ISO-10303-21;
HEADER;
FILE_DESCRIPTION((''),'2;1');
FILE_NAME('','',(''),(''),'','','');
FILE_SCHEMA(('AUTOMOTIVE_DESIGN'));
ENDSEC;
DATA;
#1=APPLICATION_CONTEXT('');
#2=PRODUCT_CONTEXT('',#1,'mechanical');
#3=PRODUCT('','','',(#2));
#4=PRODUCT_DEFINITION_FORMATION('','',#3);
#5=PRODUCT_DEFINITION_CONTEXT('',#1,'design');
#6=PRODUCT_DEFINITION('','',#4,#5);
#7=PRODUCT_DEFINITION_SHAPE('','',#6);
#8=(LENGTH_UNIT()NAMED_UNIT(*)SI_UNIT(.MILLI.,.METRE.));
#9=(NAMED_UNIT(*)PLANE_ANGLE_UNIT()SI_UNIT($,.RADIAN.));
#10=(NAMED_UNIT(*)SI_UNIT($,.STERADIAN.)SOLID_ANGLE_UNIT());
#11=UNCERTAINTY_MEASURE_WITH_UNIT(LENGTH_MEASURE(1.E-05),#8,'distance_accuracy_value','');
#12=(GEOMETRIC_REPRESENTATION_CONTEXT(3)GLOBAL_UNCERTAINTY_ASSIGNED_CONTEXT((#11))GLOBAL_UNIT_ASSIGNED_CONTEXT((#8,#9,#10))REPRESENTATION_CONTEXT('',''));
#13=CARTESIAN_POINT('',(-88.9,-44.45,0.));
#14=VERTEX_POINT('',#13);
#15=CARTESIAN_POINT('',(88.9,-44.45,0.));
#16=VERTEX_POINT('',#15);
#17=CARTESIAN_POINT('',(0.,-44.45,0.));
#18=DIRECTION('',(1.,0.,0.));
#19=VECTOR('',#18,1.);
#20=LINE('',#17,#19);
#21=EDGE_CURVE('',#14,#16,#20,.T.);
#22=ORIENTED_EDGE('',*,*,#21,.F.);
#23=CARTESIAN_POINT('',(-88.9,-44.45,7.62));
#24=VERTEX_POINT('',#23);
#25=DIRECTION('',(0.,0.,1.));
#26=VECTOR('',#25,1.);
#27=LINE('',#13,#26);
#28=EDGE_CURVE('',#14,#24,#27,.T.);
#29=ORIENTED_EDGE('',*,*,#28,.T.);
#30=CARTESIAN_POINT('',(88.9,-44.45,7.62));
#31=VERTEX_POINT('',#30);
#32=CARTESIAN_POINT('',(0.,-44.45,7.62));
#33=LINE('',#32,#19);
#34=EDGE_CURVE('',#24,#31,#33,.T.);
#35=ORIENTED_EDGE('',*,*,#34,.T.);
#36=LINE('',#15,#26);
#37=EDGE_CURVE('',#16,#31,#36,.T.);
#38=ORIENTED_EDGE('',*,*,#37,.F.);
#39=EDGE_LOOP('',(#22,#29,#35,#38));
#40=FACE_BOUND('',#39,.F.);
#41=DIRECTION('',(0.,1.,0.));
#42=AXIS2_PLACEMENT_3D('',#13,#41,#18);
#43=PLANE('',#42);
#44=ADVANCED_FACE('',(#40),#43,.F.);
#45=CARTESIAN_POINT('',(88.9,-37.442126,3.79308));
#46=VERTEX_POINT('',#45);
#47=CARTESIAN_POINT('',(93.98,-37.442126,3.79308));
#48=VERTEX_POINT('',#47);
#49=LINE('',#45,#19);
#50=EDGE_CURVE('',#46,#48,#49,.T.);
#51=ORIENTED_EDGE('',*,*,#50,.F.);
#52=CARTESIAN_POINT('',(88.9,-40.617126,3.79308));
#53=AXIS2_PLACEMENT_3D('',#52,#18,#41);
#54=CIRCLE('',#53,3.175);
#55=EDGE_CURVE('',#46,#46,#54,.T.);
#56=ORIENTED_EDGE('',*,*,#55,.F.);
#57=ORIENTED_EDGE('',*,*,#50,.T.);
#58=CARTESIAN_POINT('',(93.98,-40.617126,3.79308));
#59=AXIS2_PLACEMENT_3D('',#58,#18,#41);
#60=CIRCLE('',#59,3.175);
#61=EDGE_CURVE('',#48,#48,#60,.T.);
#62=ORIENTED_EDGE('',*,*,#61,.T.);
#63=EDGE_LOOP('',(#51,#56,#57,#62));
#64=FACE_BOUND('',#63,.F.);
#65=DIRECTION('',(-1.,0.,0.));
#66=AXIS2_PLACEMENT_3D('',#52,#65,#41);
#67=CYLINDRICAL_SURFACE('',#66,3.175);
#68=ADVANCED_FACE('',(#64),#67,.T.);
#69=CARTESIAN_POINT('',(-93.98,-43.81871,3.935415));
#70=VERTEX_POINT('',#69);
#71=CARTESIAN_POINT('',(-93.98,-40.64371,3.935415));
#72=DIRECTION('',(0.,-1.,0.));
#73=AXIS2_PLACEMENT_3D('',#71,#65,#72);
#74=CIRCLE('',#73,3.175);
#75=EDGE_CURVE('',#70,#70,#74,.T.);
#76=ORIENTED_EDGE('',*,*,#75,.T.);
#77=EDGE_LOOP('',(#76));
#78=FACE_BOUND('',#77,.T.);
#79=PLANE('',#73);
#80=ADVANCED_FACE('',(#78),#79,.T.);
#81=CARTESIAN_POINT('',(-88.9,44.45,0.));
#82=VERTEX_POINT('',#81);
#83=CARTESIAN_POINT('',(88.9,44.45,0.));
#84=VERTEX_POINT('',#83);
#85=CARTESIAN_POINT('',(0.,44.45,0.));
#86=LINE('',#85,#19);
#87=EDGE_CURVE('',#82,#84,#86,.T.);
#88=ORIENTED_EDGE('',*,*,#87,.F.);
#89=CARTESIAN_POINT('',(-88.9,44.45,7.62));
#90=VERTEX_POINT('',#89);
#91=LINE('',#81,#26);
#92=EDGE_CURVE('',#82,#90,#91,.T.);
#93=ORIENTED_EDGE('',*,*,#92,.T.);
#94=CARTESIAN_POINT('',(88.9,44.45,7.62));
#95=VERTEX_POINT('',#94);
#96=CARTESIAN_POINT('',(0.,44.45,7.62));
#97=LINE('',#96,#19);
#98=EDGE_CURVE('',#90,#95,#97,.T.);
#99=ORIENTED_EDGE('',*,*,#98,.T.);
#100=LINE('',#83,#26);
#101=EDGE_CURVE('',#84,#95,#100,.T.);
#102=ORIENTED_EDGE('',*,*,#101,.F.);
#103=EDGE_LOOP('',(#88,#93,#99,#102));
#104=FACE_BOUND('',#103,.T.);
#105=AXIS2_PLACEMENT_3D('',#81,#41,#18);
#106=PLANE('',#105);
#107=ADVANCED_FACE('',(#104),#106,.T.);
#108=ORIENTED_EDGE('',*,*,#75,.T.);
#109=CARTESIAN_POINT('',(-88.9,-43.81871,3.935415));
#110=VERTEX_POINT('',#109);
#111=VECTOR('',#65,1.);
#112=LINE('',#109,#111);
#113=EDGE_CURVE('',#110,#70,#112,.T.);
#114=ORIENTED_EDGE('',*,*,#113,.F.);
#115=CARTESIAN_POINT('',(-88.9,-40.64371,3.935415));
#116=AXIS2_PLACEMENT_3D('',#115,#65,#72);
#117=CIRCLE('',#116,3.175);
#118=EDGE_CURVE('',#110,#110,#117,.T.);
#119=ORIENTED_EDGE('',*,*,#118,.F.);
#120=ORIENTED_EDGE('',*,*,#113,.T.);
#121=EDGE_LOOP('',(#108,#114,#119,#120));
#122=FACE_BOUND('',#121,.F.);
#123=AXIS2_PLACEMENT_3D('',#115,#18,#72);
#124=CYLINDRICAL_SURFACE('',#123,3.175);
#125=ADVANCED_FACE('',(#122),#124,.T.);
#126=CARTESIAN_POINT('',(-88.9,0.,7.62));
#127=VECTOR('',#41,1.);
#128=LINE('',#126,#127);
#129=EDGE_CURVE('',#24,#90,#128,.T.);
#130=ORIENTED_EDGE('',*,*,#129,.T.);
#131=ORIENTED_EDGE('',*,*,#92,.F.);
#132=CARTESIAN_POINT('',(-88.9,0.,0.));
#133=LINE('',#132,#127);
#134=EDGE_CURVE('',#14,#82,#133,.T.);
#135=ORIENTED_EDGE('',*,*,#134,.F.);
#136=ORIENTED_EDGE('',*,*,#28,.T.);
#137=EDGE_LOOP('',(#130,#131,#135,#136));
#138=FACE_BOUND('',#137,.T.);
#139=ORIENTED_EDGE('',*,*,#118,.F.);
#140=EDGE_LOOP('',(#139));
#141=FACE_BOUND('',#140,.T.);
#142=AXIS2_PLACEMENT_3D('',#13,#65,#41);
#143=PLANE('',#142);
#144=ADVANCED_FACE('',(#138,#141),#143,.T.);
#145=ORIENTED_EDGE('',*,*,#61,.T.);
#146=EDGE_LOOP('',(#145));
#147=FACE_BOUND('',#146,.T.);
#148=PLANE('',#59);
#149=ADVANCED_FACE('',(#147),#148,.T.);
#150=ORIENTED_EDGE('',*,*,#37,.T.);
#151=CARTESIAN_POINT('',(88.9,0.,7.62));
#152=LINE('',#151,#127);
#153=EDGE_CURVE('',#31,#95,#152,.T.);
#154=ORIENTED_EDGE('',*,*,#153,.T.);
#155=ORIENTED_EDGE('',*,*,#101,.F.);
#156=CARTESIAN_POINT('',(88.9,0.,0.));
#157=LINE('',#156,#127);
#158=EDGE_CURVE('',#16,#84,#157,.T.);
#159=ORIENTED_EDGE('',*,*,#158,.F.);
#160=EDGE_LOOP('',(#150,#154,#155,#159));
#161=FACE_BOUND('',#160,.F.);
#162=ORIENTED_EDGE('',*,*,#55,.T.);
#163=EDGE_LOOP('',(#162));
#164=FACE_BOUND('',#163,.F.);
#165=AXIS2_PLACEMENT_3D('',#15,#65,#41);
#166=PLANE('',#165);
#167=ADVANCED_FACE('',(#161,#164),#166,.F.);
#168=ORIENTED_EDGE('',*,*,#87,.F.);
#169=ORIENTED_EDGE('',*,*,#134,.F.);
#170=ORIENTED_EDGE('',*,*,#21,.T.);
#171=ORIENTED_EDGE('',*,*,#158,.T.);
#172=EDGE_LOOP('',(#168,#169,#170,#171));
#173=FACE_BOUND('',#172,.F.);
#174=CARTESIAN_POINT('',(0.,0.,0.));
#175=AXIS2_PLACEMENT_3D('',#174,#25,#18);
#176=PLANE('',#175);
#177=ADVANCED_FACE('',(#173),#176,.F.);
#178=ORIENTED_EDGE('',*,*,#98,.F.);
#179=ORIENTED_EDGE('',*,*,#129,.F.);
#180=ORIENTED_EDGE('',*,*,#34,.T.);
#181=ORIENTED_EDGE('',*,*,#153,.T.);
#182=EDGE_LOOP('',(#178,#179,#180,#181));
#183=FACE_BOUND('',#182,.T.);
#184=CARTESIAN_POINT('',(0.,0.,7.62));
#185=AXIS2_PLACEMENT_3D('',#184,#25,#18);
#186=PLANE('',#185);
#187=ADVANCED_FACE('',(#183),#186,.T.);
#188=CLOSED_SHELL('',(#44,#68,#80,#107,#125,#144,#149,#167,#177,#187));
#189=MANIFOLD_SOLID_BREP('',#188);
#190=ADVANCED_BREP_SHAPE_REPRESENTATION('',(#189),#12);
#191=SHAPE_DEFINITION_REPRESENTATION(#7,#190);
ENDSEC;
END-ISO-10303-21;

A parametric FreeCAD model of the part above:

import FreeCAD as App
import Part
import Sketcher
Q = App.Units.Quantity


def add_polygon(sketch, points):
    """Adds a closed chain of lines whose ends are joined by coincident constraints."""
    first, n = sketch.GeometryCount, len(points)
    for a, b in zip(points, points[1:] + points[:1]):
        sketch.addGeometry(Part.LineSegment(App.Vector(*a, 0), App.Vector(*b, 0)), False)
    for i in range(n):
        sketch.addConstraint(Sketcher.Constraint("Coincident", first + i, 2, first + (i + 1) % n, 1))

doc = App.newDocument("Part")
body = doc.addObject("PartDesign::Body", "Body")

# Sketch on XY plane
sketch1 = doc.addObject("Sketcher::SketchObject", "Sketch")
body.addObject(sketch1)
sketch1.AttachmentSupport = (doc.XY_Plane, [""])
sketch1.MapMode = "FlatFace"
add_polygon(sketch1, [(-89, 44), (-89, -44), (89, -44), (89, 44)])  # lines 0-3
sketch1.addConstraint(Sketcher.Constraint("Vertical", 0))
sketch1.addConstraint(Sketcher.Constraint("Horizontal", 1))
sketch1.addConstraint(Sketcher.Constraint("Vertical", 2))
sketch1.addConstraint(Sketcher.Constraint("Horizontal", 3))
sketch1.addConstraint(Sketcher.Constraint("Symmetric", 0, 2, 2, 2, -1, 1))
sketch1.addConstraint(Sketcher.Constraint("DistanceX", 1, 1, 1, 2, Q("7 in")))
sketch1.addConstraint(Sketcher.Constraint("DistanceY", 0, 2, 0, 1, Q("3.5 in")))
pad1 = doc.addObject("PartDesign::Pad", "Pad")
body.addObject(pad1)
pad1.Profile = sketch1
pad1.Length = Q("0.3 in")

# Sketch on YZ plane
sketch2 = doc.addObject("Sketcher::SketchObject", "Sketch001")
body.addObject(sketch2)
sketch2.AttachmentSupport = (doc.YZ_Plane, [""])
sketch2.MapMode = "FlatFace"
sketch2.AttachmentOffset = App.Placement(App.Vector(0, 0, -3.5 * 25.4), App.Rotation())
sketch2.addGeometry(Part.Circle(App.Vector(-40.6, 3.9, 0), App.Vector(0, 0, 1), 3.2), False)
sketch2.addConstraint(Sketcher.Constraint("Diameter", 0, Q("0.25 in")))
sketch2.addConstraint(Sketcher.Constraint("DistanceX", 0, 3, -1, 1, 40.64371))
sketch2.addConstraint(Sketcher.Constraint("DistanceY", -1, 1, 0, 3, 3.935415))
pad2 = doc.addObject("PartDesign::Pad", "Pad001")
body.addObject(pad2)
pad2.Profile = sketch2
pad2.Length = Q("0.2 in")
pad2.Reversed = True

# Sketch on YZ plane
sketch3 = doc.addObject("Sketcher::SketchObject", "Sketch002")
body.addObject(sketch3)
sketch3.AttachmentSupport = (doc.YZ_Plane, [""])
sketch3.MapMode = "FlatFace"
sketch3.AttachmentOffset = App.Placement(App.Vector(0, 0, 3.5 * 25.4), App.Rotation())
sketch3.addGeometry(Part.Circle(App.Vector(-40.6, 3.8, 0), App.Vector(0, 0, 1), 3.2), False)
sketch3.addConstraint(Sketcher.Constraint("Diameter", 0, Q("0.25 in")))
sketch3.addConstraint(Sketcher.Constraint("DistanceY", -1, 1, 0, 3, 3.79308))
sketch3.addConstraint(Sketcher.Constraint("DistanceX", 0, 3, -1, 1, 40.617126))
pad3 = doc.addObject("PartDesign::Pad", "Pad002")
body.addObject(pad3)
pad3.Profile = sketch3
pad3.Length = Q("0.2 in")

doc.recompute()
